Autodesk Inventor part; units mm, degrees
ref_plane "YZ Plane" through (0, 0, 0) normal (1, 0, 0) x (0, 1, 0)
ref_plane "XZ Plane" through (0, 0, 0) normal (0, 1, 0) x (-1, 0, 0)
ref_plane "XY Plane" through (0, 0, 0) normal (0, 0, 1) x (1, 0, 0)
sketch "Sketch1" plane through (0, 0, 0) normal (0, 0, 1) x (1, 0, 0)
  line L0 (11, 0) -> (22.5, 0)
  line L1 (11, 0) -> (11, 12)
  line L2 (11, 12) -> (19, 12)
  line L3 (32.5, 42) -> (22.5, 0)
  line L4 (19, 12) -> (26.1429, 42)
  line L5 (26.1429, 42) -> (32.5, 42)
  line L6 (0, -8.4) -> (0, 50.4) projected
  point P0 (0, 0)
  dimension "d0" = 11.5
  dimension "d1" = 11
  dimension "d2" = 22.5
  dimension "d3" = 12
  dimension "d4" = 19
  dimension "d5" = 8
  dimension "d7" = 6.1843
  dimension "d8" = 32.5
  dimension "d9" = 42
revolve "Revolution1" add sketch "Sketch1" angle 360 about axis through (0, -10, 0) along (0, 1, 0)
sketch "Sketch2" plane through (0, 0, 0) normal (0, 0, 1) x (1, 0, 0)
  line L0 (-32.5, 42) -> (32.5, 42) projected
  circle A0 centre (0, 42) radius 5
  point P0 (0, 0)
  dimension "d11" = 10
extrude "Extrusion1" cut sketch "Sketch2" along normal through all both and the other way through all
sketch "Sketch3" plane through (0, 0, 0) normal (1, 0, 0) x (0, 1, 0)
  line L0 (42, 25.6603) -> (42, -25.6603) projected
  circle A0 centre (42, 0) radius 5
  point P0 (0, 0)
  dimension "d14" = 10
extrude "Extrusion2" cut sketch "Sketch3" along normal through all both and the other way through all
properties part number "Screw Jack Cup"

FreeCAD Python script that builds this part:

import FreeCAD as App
import Part
import Sketcher
Q = App.Units.Quantity

doc = App.newDocument("Part")
body = doc.addObject("PartDesign::Body", "Body")

sketch1 = body.newObject("Sketcher::SketchObject", "Sketch")
sketch1.AttachmentSupport = (doc.getObject("XY_Plane"), [""])
sketch1.MapMode = "FlatFace"
sketch1.addGeometry([
    Part.LineSegment(App.Vector(11, 12, 0), App.Vector(11, 0, 0)),
    Part.LineSegment(App.Vector(11, 0, 0), App.Vector(22, 0, 0)),
    Part.LineSegment(App.Vector(22, 0, 0), App.Vector(32, 42, 0)),
    Part.LineSegment(App.Vector(32, 42, 0), App.Vector(26, 42, 0)),
    Part.LineSegment(App.Vector(26, 42, 0), App.Vector(19, 12, 0)),
    Part.LineSegment(App.Vector(19, 12, 0), App.Vector(11, 12, 0)),
], False)
sketch1.addConstraint([
    Sketcher.Constraint("Coincident", 0, 2, 1, 1),
    Sketcher.Constraint("Coincident", 1, 2, 2, 1),
    Sketcher.Constraint("Coincident", 2, 2, 3, 1),
    Sketcher.Constraint("Coincident", 3, 2, 4, 1),
    Sketcher.Constraint("Coincident", 4, 2, 5, 1),
    Sketcher.Constraint("Coincident", 5, 2, 0, 1),
    Sketcher.Constraint("Vertical", 0),
    Sketcher.Constraint("Horizontal", 1),
    Sketcher.Constraint("Horizontal", 3),
    Sketcher.Constraint("Horizontal", 5),
    Sketcher.Constraint("PointOnObject", 0, 2, -1),
    Sketcher.Constraint("Parallel", 2, 4),
    Sketcher.Constraint("DistanceX", 5, 2, 5, 1, Q("8 mm")),
    Sketcher.Constraint("DistanceY", 0, 2, 0, 1, Q("12 mm")),
    Sketcher.Constraint("DistanceX", 1, 1, 1, 2, Q("11.5 mm")),
    Sketcher.Constraint("DistanceX", -1, 1, 0, 2, Q("11 mm")),
    Sketcher.Constraint("DistanceY", -1, 1, 2, 2, Q("42 mm")),
    Sketcher.Constraint("DistanceX", -1, 1, 2, 2, Q("32.5 mm")),
])
revolution = body.newObject("PartDesign::Revolution", "Revolution")
revolution.Profile = sketch1
revolution.ReferenceAxis = (sketch1, ["V_Axis"])
revolution.Angle = 360

sketch2 = body.newObject("Sketcher::SketchObject", "Sketch001")
sketch2.AttachmentSupport = (doc.getObject("XY_Plane"), [""])
sketch2.MapMode = "FlatFace"
sketch2.addGeometry(Part.Circle(App.Vector(0, 42, 0), App.Vector(0, 0, 1), 5), False)
sketch2.addConstraint([
    Sketcher.Constraint("PointOnObject", 0, 3, -2),
    Sketcher.Constraint("Diameter", 0, Q("10 mm")),
    Sketcher.Constraint("DistanceY", -1, 1, 0, 3, Q("42 mm")),
])
pocket1 = body.newObject("PartDesign::Pocket", "Pocket")
pocket1.Profile = sketch2
pocket1.Type = "ThroughAll"
pocket1.Midplane = True

sketch3 = body.newObject("Sketcher::SketchObject", "Sketch002")
sketch3.AttachmentSupport = (doc.getObject("YZ_Plane"), [""])
sketch3.MapMode = "FlatFace"
sketch3.addGeometry(Part.Circle(App.Vector(42, 0, 0), App.Vector(0, 0, 1), 5), False)
sketch3.addConstraint([
    Sketcher.Constraint("PointOnObject", 0, 3, -1),
    Sketcher.Constraint("Diameter", 0, Q("10 mm")),
    Sketcher.Constraint("DistanceX", -1, 1, 0, 3, Q("42 mm")),
])
pocket2 = body.newObject("PartDesign::Pocket", "Pocket001")
pocket2.Profile = sketch3
pocket2.Type = "ThroughAll"
pocket2.Midplane = True

doc.recompute()
